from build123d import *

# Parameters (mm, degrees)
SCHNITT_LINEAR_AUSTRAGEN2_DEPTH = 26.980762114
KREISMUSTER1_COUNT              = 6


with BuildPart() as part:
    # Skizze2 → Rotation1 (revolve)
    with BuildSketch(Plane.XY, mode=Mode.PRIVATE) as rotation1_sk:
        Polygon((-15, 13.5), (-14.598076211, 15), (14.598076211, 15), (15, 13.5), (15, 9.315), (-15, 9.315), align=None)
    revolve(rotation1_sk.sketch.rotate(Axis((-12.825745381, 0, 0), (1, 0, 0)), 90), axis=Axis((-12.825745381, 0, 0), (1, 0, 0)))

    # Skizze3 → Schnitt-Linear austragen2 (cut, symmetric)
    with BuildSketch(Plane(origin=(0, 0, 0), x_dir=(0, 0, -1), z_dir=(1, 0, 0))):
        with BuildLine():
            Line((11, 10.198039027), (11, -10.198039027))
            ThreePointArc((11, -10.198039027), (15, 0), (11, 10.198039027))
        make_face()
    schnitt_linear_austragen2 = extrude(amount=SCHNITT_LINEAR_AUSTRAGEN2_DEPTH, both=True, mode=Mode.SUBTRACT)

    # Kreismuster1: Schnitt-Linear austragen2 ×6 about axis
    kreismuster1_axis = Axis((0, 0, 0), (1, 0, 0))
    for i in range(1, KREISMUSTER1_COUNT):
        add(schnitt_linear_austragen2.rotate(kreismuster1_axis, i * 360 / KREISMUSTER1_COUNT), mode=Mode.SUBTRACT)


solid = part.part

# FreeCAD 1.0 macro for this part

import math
import FreeCAD as App
import Part
import Sketcher

V = App.Vector
Q = App.Units.Quantity

doc = App.newDocument("Part")
params = doc.addObject("Spreadsheet::Sheet", "Params")
for row, (alias, value) in enumerate([
    ("sketch1_width", "30 mm"),
    ("revolution_angle", "360 deg"),
    ("sketch2_radius", "15 mm"),
    ("pocket1_length", "53.961524 mm"),
], start=1):
    params.set(f"A{row}", alias)
    params.set(f"B{row}", "=" + value)
    params.setAlias(f"B{row}", alias)

body = doc.addObject("PartDesign::Body", "Body")

# Sketch on XY plane
sketch1 = body.newObject("Sketcher::SketchObject", "Sketch")
sketch1.AttachmentSupport = (doc.getObject("XY_Plane"), [""])
sketch1.MapMode = "FlatFace"
sketch1.addGeometry(Part.LineSegment(V(-14.6, 15, 0), V(-15, 13.5, 0)), False)
sketch1.addGeometry(Part.LineSegment(V(-15, 13.5, 0), V(-15, 9.3, 0)), False)
sketch1.addGeometry(Part.LineSegment(V(-15, 9.3, 0), V(15, 9.3, 0)), False)
sketch1.addGeometry(Part.LineSegment(V(15, 9.3, 0), V(15, 13.5, 0)), False)
sketch1.addGeometry(Part.LineSegment(V(15, 13.5, 0), V(14.6, 15, 0)), False)
sketch1.addGeometry(Part.LineSegment(V(14.6, 15, 0), V(-14.6, 15, 0)), False)
sketch1.addConstraint(Sketcher.Constraint("Coincident", 0, 2, 1, 1))
sketch1.addConstraint(Sketcher.Constraint("Coincident", 1, 2, 2, 1))
sketch1.addConstraint(Sketcher.Constraint("Coincident", 2, 2, 3, 1))
sketch1.addConstraint(Sketcher.Constraint("Coincident", 3, 2, 4, 1))
sketch1.addConstraint(Sketcher.Constraint("Coincident", 4, 2, 5, 1))
sketch1.addConstraint(Sketcher.Constraint("Coincident", 5, 2, 0, 1))
sketch1.addConstraint(Sketcher.Constraint("Vertical", 1))
sketch1.addConstraint(Sketcher.Constraint("Horizontal", 2))
sketch1.addConstraint(Sketcher.Constraint("Vertical", 3))
sketch1.addConstraint(Sketcher.Constraint("Horizontal", 5))
sketch1.addConstraint(Sketcher.Constraint("Symmetric", 0, 2, 3, 2, -2))
sketch1.addConstraint(Sketcher.Constraint("Equal", 0, 4))
sketch1.addConstraint(Sketcher.Constraint("DistanceX", 2, 1, 2, 2, Q("30 mm")))
sketch1.addConstraint(Sketcher.Constraint("Angle", 0, Q("-105 deg")))
sketch1.addConstraint(Sketcher.Constraint("DistanceY", -1, 1, 4, 2, Q("15 mm")))
sketch1.addConstraint(Sketcher.Constraint("DistanceY", -1, 1, 0, 2, Q("13.5 mm")))
sketch1.addConstraint(Sketcher.Constraint("DistanceY", 1, 2, 1, 1, Q("4.185 mm")))
sketch1.setExpression("Constraints[12]", "Params.sketch1_width")
revolution = body.newObject("PartDesign::Revolution", "Revolution")
revolution.Profile = sketch1
revolution.ReferenceAxis = (sketch1, ["H_Axis"])
revolution.setExpression("Angle", "Params.revolution_angle")

# Sketch on YZ plane
sketch2 = body.newObject("Sketcher::SketchObject", "Sketch001")
sketch2.AttachmentSupport = (doc.getObject("YZ_Plane"), [""])
sketch2.MapMode = "FlatFace"
sketch2.addGeometry(Part.LineSegment(V(10, -11, 0), V(-10, -11, 0)), False)
sketch2.addGeometry(Part.ArcOfCircle(Part.Circle(V(0, 0, 0), V(0, 0, 1), 15), math.radians(-133), math.radians(-47)), False)
sketch2.addConstraint(Sketcher.Constraint("Coincident", 0, 1, 1, 2))
sketch2.addConstraint(Sketcher.Constraint("Coincident", 1, 1, 0, 2))
sketch2.addConstraint(Sketcher.Constraint("Horizontal", 0))
sketch2.addConstraint(Sketcher.Constraint("Coincident", 1, 3, -1, 1))
sketch2.addConstraint(Sketcher.Constraint("Radius", 1, Q("15 mm")))
sketch2.addConstraint(Sketcher.Constraint("DistanceY", 0, 1, -1, 1, Q("11 mm")))
sketch2.setExpression("Constraints[4]", "Params.sketch2_radius")
pocket1 = body.newObject("PartDesign::Pocket", "Pocket")
pocket1.Profile = sketch2
pocket1.setExpression("Length", "Params.pocket1_length")
pocket1.Midplane = True
doc.recompute()

polarpattern = body.newObject("PartDesign::PolarPattern", "PolarPattern")
polarpattern.Originals = [pocket1]
polarpattern.Axis = (doc.getObject("X_Axis"), [""])
polarpattern.Angle = 360
polarpattern.Occurrences = 6
body.Tip = polarpattern

doc.recompute()
